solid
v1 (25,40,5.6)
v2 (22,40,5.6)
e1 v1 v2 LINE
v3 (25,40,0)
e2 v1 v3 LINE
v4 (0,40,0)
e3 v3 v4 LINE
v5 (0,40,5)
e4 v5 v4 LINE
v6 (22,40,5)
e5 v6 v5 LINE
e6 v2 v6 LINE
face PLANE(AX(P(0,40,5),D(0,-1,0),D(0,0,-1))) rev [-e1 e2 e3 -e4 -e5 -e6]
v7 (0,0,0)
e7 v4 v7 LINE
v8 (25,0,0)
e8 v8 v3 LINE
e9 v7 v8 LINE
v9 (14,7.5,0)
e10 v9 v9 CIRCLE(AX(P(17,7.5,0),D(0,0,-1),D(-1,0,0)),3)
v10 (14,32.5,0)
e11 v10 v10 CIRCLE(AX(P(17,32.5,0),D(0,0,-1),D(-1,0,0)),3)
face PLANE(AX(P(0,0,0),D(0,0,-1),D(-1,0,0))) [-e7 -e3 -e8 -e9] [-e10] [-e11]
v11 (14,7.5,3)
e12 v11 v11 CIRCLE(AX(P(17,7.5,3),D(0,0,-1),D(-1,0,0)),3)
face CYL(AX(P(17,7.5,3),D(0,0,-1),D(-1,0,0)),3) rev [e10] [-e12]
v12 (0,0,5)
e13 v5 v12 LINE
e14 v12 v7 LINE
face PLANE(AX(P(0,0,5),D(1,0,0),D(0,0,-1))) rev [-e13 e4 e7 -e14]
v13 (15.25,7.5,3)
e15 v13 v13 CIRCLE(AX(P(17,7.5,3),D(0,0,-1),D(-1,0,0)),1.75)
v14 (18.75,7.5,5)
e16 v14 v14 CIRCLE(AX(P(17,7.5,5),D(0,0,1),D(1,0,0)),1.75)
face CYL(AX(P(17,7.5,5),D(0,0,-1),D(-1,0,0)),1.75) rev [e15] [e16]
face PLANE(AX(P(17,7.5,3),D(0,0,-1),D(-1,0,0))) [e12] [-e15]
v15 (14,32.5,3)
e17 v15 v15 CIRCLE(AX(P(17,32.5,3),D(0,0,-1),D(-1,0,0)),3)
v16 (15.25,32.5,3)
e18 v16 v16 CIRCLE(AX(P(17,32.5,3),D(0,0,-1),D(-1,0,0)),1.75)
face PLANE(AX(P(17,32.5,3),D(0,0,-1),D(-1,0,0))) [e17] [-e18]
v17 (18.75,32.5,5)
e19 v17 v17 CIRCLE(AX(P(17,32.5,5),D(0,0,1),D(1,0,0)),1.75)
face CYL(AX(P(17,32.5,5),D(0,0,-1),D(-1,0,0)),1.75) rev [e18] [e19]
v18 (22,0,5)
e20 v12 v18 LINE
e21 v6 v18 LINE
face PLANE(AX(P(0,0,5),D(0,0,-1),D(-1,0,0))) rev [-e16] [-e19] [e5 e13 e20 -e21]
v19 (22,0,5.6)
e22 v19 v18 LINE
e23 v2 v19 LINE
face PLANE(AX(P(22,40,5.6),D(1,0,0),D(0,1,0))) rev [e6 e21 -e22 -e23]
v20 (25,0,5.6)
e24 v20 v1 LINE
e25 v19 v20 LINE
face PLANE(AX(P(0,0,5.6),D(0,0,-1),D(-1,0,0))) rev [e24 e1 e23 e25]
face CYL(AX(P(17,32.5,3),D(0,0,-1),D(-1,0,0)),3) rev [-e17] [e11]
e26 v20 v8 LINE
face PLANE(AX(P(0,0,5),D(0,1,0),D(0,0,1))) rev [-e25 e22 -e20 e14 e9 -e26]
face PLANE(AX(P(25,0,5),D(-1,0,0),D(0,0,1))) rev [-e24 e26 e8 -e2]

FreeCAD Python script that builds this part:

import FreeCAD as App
import Part
import Sketcher
from FreeCAD import Vector


def add_polygon(sketch, points):
    """Adds a closed chain of lines whose ends are joined by coincident constraints."""
    first, n = sketch.GeometryCount, len(points)
    for a, b in zip(points, points[1:] + points[:1]):
        sketch.addGeometry(Part.LineSegment(App.Vector(*a, 0), App.Vector(*b, 0)), False)
    for i in range(n):
        sketch.addConstraint(Sketcher.Constraint("Coincident", first + i, 2, first + (i + 1) % n, 1))

doc = App.newDocument("Part")
body = doc.addObject("PartDesign::Body", "Body")

# Sketch on XY plane
sketch1 = doc.addObject("Sketcher::SketchObject", "Sketch")
body.addObject(sketch1)
sketch1.AttachmentSupport = (doc.XY_Plane, [""])
sketch1.MapMode = "FlatFace"
add_polygon(sketch1, [(0, 40), (0, 0), (25, 0), (25, 40)])  # lines 0-3
sketch1.addGeometry(Part.Circle(Vector(17, 7.5, 0), Vector(0, 0, 1), 1.8), False)  # 4
sketch1.addGeometry(Part.Circle(Vector(17, 32.5, 0), Vector(0, 0, 1), 1.8), False)  # 5
sketch1.addConstraint([
    Sketcher.Constraint("Vertical", 0),
    Sketcher.Constraint("Horizontal", 1),
    Sketcher.Constraint("Vertical", 2),
    Sketcher.Constraint("Horizontal", 3),
    Sketcher.Constraint("Coincident", 0, 2, -1, 1),
    Sketcher.Constraint("Equal", 4, 5),
    Sketcher.Constraint("Vertical", 4, 3, 5, 3),
    Sketcher.Constraint("Diameter", 4, 3.5),
    Sketcher.Constraint("DistanceX", 1, 1, 1, 2, 25.0),
    Sketcher.Constraint("DistanceY", 0, 2, 0, 1, 40.0),
    Sketcher.Constraint("DistanceX", -1, 1, 4, 3, 17.0),
    Sketcher.Constraint("DistanceY", 4, 3, 5, 3, 25.0),
    Sketcher.Constraint("DistanceY", -1, 1, 4, 3, 7.5),
])
pad1 = doc.addObject("PartDesign::Pad", "Pad")
body.addObject(pad1)
pad1.Profile = sketch1
pad1.Length = 5

# Sketch on XY plane
sketch2 = doc.addObject("Sketcher::SketchObject", "Sketch001")
body.addObject(sketch2)
sketch2.AttachmentSupport = (doc.XY_Plane, [""])
sketch2.MapMode = "FlatFace"
sketch2.AttachmentOffset = App.Placement(Vector(0, 0, 5), App.Rotation())
add_polygon(sketch2, [(22, 40), (22, 0), (25, 0), (25, 40)])  # lines 0-3
sketch2.addConstraint([
    Sketcher.Constraint("Vertical", 0),
    Sketcher.Constraint("Horizontal", 1),
    Sketcher.Constraint("Vertical", 2),
    Sketcher.Constraint("Horizontal", 3),
    Sketcher.Constraint("PointOnObject", 0, 2, -1),
    Sketcher.Constraint("DistanceX", 1, 1, 1, 2, 3.0),
    Sketcher.Constraint("DistanceY", 0, 2, 0, 1, 40.0),
    Sketcher.Constraint("DistanceX", -1, 1, 0, 2, 22.0),
])
pad2 = doc.addObject("PartDesign::Pad", "Pad001")
body.addObject(pad2)
pad2.Profile = sketch2
pad2.Length = 0.6

# Sketch on XY plane
sketch3 = doc.addObject("Sketcher::SketchObject", "Sketch002")
body.addObject(sketch3)
sketch3.AttachmentSupport = (doc.XY_Plane, [""])
sketch3.MapMode = "FlatFace"
sketch3.addGeometry([
    Part.Circle(Vector(17, 7.5, 0), Vector(0, 0, 1), 3),
    Part.Circle(Vector(17, 32.5, 0), Vector(0, 0, 1), 3),
], False)
sketch3.addConstraint([
    Sketcher.Constraint("Equal", 0, 1),
    Sketcher.Constraint("Vertical", 0, 3, 1, 3),
    Sketcher.Constraint("Diameter", 0, 6.0),
    Sketcher.Constraint("DistanceX", -1, 1, 0, 3, 17.0),
    Sketcher.Constraint("DistanceY", 0, 3, 1, 3, 25.0),
    Sketcher.Constraint("DistanceY", -1, 1, 0, 3, 7.5),
])
pocket1 = doc.addObject("PartDesign::Pocket", "Pocket")
body.addObject(pocket1)
pocket1.Profile = sketch3
pocket1.Length = 3
pocket1.Reversed = True

doc.recompute()
